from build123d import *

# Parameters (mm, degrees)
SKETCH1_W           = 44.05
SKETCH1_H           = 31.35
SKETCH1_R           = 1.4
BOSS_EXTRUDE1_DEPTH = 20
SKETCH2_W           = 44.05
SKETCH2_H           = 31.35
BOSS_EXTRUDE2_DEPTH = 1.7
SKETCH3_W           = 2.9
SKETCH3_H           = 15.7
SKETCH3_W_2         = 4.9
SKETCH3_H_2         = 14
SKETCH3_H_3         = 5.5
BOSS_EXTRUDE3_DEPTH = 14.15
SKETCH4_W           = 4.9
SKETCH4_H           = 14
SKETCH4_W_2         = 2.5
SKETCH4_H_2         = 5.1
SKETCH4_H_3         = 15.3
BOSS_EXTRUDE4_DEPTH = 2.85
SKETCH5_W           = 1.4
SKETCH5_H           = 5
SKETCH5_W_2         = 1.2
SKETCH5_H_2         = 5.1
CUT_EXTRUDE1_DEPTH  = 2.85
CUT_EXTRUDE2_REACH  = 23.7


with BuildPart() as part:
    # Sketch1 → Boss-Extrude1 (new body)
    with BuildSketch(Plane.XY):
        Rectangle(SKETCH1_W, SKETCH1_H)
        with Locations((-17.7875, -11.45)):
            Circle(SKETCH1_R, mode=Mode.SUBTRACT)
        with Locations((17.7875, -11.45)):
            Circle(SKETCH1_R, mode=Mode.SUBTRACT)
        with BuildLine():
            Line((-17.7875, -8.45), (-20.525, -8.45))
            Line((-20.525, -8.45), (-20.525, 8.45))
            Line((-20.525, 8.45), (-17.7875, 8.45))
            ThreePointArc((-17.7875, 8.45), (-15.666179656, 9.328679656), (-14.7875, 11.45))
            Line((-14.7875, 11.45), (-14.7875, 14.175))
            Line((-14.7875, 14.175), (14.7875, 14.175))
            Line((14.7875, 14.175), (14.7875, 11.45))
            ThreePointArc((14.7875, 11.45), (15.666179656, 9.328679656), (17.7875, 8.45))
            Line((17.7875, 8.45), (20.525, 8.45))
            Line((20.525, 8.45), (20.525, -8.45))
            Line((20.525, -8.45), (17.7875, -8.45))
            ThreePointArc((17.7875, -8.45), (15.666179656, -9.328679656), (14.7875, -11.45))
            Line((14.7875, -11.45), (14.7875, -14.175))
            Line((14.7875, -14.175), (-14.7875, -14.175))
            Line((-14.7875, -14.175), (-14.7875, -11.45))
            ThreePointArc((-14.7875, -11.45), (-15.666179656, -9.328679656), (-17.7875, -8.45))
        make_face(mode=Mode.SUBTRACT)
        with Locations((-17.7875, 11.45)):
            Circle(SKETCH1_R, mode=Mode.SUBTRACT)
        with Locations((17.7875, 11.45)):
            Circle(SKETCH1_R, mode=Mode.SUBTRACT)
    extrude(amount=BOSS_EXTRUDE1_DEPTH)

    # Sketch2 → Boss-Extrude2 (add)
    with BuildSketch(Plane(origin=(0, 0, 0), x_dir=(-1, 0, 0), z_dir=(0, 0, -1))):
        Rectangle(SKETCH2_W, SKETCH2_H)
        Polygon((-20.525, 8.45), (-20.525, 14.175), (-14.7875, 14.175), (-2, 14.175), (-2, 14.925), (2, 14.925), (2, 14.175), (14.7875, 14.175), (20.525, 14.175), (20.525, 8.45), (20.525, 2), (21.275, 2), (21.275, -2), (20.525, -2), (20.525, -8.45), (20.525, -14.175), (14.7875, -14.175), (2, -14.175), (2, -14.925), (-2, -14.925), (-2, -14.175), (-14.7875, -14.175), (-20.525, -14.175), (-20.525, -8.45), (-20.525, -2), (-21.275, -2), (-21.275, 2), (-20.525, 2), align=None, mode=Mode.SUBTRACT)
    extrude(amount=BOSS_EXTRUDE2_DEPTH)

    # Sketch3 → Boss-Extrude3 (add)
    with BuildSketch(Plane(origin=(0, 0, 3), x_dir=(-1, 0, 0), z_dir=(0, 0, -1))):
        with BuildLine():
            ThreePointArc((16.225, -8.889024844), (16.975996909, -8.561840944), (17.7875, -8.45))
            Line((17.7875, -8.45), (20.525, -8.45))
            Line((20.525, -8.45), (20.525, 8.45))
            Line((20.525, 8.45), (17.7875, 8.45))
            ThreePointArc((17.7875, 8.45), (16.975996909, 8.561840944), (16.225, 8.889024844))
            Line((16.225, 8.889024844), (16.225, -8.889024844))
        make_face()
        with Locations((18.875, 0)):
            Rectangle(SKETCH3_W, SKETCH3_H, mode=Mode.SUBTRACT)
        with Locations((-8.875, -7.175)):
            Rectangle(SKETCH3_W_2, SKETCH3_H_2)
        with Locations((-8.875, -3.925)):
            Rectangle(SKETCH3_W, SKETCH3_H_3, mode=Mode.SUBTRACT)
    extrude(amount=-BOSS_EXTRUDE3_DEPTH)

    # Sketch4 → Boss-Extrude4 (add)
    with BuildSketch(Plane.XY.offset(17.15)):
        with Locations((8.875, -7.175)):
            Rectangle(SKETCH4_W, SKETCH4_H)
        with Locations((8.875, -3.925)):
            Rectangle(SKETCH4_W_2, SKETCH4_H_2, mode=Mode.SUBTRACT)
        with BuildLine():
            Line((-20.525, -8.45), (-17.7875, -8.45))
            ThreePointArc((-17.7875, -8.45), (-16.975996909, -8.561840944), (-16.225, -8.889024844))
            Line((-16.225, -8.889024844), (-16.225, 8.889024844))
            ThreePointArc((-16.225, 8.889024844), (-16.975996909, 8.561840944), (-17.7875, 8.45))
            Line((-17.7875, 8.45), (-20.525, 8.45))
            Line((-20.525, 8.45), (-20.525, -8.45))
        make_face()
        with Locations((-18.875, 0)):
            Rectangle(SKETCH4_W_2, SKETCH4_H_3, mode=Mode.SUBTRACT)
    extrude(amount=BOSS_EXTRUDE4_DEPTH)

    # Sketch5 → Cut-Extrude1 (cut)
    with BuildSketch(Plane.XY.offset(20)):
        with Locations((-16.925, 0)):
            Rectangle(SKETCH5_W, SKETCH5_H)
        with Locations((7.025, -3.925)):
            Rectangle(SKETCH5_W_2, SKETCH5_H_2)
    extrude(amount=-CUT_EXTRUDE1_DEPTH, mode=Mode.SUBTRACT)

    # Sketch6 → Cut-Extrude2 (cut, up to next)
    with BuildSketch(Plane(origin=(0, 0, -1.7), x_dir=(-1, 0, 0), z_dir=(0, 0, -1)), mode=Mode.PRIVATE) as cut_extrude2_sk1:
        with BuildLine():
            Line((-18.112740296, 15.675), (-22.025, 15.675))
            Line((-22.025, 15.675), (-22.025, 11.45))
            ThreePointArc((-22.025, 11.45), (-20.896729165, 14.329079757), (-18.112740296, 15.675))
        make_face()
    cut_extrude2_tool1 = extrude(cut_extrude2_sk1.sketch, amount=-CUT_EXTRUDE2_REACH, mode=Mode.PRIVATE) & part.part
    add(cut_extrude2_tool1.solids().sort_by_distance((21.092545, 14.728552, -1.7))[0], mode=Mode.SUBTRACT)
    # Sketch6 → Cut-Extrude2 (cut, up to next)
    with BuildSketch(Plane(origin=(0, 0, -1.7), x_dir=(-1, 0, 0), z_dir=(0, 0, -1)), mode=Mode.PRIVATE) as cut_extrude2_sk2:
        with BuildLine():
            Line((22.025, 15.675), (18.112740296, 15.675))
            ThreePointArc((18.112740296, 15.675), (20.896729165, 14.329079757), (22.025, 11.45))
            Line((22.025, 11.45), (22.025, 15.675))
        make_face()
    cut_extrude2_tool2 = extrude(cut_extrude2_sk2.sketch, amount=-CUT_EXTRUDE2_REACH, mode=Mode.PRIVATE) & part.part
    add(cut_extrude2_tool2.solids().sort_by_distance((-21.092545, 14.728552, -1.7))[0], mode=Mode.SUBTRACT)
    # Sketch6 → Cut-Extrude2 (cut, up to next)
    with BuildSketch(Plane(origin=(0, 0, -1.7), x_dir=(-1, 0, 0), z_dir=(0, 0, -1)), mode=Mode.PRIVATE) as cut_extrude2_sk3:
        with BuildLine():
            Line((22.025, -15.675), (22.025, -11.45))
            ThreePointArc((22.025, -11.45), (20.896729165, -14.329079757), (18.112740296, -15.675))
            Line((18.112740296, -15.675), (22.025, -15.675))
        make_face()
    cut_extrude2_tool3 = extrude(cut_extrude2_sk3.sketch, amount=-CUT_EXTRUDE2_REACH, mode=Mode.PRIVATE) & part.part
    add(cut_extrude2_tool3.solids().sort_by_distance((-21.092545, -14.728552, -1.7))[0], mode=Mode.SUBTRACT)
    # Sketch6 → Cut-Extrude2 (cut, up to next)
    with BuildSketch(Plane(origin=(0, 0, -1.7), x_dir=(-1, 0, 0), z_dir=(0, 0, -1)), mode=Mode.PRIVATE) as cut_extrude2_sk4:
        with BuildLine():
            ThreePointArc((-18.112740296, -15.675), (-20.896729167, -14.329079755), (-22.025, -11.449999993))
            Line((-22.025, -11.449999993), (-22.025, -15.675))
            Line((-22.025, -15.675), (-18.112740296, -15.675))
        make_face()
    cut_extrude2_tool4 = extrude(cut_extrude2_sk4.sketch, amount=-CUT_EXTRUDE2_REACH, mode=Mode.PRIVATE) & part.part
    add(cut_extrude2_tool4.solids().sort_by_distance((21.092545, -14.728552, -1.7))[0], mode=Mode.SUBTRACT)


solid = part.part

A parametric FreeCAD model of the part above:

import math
import FreeCAD as App
import Part
import Sketcher
from FreeCAD import Vector

doc = App.newDocument("Part")
body = doc.addObject("PartDesign::Body", "Body")

sketch1 = body.newObject("Sketcher::SketchObject", "Sketch")
sketch1.AttachmentSupport = (doc.getObject("XY_Plane"), [""])
sketch1.MapMode = "FlatFace"
sketch1.addGeometry([
    Part.LineSegment(Vector(-22, 15.7, 0), Vector(-22, -15.7, 0)),
    Part.LineSegment(Vector(-22, -15.7, 0), Vector(22, -15.7, 0)),
    Part.LineSegment(Vector(22, -15.7, 0), Vector(22, 15.7, 0)),
    Part.LineSegment(Vector(22, 15.7, 0), Vector(-22, 15.7, 0)),
    Part.Circle(Vector(-17.8, -11.4, 0), Vector(0, 0, 1), 1.4),
    Part.Circle(Vector(17.8, -11.4, 0), Vector(0, 0, 1), 1.4),
    Part.Circle(Vector(-17.8, 11.4, 0), Vector(0, 0, 1), 1.4),
    Part.ArcOfCircle(Part.Circle(Vector(-17.8, -11.4, 0), Vector(0, 0, 1), 3), math.radians(0), math.radians(90)),
    Part.LineSegment(Vector(-17.8, -8.4, 0), Vector(-20.5, -8.4, 0)),
    Part.LineSegment(Vector(-20.5, -8.4, 0), Vector(-20.5, 8.4, 0)),
    Part.LineSegment(Vector(-20.5, 8.4, 0), Vector(-17.8, 8.4, 0)),
    Part.ArcOfCircle(Part.Circle(Vector(-17.8, 11.4, 0), Vector(0, 0, 1), 3), math.radians(-90), math.radians(0)),
    Part.LineSegment(Vector(-14.8, 11.4, 0), Vector(-14.8, 14.2, 0)),
    Part.LineSegment(Vector(-14.8, 14.2, 0), Vector(14.8, 14.2, 0)),
    Part.LineSegment(Vector(14.8, 14.2, 0), Vector(14.8, 11.4, 0)),
    Part.ArcOfCircle(Part.Circle(Vector(17.8, 11.4, 0), Vector(0, 0, 1), 3), math.radians(180), math.radians(270)),
    Part.LineSegment(Vector(17.8, 8.4, 0), Vector(20.5, 8.4, 0)),
    Part.LineSegment(Vector(20.5, 8.4, 0), Vector(20.5, -8.4, 0)),
    Part.LineSegment(Vector(20.5, -8.4, 0), Vector(17.8, -8.4, 0)),
    Part.ArcOfCircle(Part.Circle(Vector(17.8, -11.4, 0), Vector(0, 0, 1), 3), math.radians(90), math.radians(180)),
    Part.LineSegment(Vector(14.8, -11.4, 0), Vector(14.8, -14.2, 0)),
    Part.LineSegment(Vector(14.8, -14.2, 0), Vector(-14.8, -14.2, 0)),
    Part.LineSegment(Vector(-14.8, -14.2, 0), Vector(-14.8, -11.4, 0)),
    Part.Circle(Vector(17.8, 11.4, 0), Vector(0, 0, 1), 1.4),
], False)
sketch1.addConstraint([
    Sketcher.Constraint("Coincident", 0, 2, 1, 1),
    Sketcher.Constraint("Coincident", 1, 2, 2, 1),
    Sketcher.Constraint("Coincident", 2, 2, 3, 1),
    Sketcher.Constraint("Coincident", 3, 2, 0, 1),
    Sketcher.Constraint("Tangent", 7, 2, 8, 1),
    Sketcher.Constraint("Coincident", 8, 2, 9, 1),
    Sketcher.Constraint("Coincident", 9, 2, 10, 1),
    Sketcher.Constraint("Tangent", 10, 2, 11, 1),
    Sketcher.Constraint("Tangent", 11, 2, 12, 1),
    Sketcher.Constraint("Coincident", 12, 2, 13, 1),
    Sketcher.Constraint("Coincident", 13, 2, 14, 1),
    Sketcher.Constraint("Tangent", 14, 2, 15, 1),
    Sketcher.Constraint("Tangent", 15, 2, 16, 1),
    Sketcher.Constraint("Coincident", 16, 2, 17, 1),
    Sketcher.Constraint("Coincident", 17, 2, 18, 1),
    Sketcher.Constraint("Tangent", 18, 2, 19, 1),
    Sketcher.Constraint("Tangent", 19, 2, 20, 1),
    Sketcher.Constraint("Coincident", 20, 2, 21, 1),
    Sketcher.Constraint("Coincident", 21, 2, 22, 1),
    Sketcher.Constraint("Tangent", 22, 2, 7, 1),
    Sketcher.Constraint("Vertical", 0),
    Sketcher.Constraint("Horizontal", 1),
    Sketcher.Constraint("Vertical", 2),
    Sketcher.Constraint("Horizontal", 3),
    Sketcher.Constraint("Horizontal", 8),
    Sketcher.Constraint("Vertical", 9),
    Sketcher.Constraint("Horizontal", 10),
    Sketcher.Constraint("Vertical", 12),
    Sketcher.Constraint("Horizontal", 13),
    Sketcher.Constraint("Vertical", 14),
    Sketcher.Constraint("Horizontal", 16),
    Sketcher.Constraint("Vertical", 17),
    Sketcher.Constraint("Horizontal", 18),
    Sketcher.Constraint("Vertical", 20),
    Sketcher.Constraint("Horizontal", 21),
    Sketcher.Constraint("Vertical", 22),
    Sketcher.Constraint("Coincident", 7, 3, 4, 3),
    Sketcher.Constraint("Coincident", 11, 3, 6, 3),
    Sketcher.Constraint("Coincident", 19, 3, 5, 3),
    Sketcher.Constraint("Coincident", 23, 3, 15, 3),
    Sketcher.Constraint("Equal", 4, 5),
    Sketcher.Constraint("Equal", 5, 6),
    Sketcher.Constraint("Equal", 7, 11),
    Sketcher.Constraint("Equal", 11, 15),
    Sketcher.Constraint("Equal", 15, 19),
    Sketcher.Constraint("Equal", 6, 23),
    Sketcher.Constraint("Symmetric", 5, 3, 6, 3, -1, 1),
    Sketcher.Constraint("Symmetric", 4, 3, 15, 3, -1, 1),
    Sketcher.Constraint("Symmetric", 0, 2, 2, 2, -1, 1),
    Sketcher.Constraint("Symmetric", 4, 3, 5, 3, -2),
    Sketcher.Constraint("Equal", 10, 16),
    Sketcher.Constraint("Equal", 14, 20),
    Sketcher.Constraint("Radius", 7, 3.0),
    Sketcher.Constraint("Diameter", 4, 2.8),
    Sketcher.Constraint("DistanceY", 9, 1, 9, 2, 16.9),
    Sketcher.Constraint("DistanceX", 1, 1, 1, 2, 44.05),
    Sketcher.Constraint("DistanceY", 0, 2, 0, 1, 31.35),
    Sketcher.Constraint("DistanceX", 0, 2, 8, 2, 1.5),
    Sketcher.Constraint("DistanceY", 12, 2, 3, 2, 1.5),
    Sketcher.Constraint("DistanceX", 13, 1, 13, 2, 29.575),
])
pad1 = body.newObject("PartDesign::Pad", "Pad")
pad1.Profile = sketch1
pad1.Length = 20

sketch2 = body.newObject("Sketcher::SketchObject", "Sketch001")
sketch2.AttachmentSupport = (doc.getObject("XY_Plane"), [""])
sketch2.MapMode = "FlatFace"
sketch2.addGeometry([
    Part.LineSegment(Vector(22, 15.7, 0), Vector(22, -15.7, 0)),
    Part.LineSegment(Vector(22, -15.7, 0), Vector(-22, -15.7, 0)),
    Part.LineSegment(Vector(-22, -15.7, 0), Vector(-22, 15.7, 0)),
    Part.LineSegment(Vector(-22, 15.7, 0), Vector(22, 15.7, 0)),
    Part.LineSegment(Vector(20.5, 2, 0), Vector(20.5, 14.2, 0)),
    Part.LineSegment(Vector(20.5, 14.2, 0), Vector(2, 14.2, 0)),
    Part.LineSegment(Vector(2, 14.2, 0), Vector(2, 14.9, 0)),
    Part.LineSegment(Vector(2, 14.9, 0), Vector(-2, 14.9, 0)),
    Part.LineSegment(Vector(-2, 14.9, 0), Vector(-2, 14.2, 0)),
    Part.LineSegment(Vector(-2, 14.2, 0), Vector(-20.5, 14.2, 0)),
    Part.LineSegment(Vector(-20.5, 14.2, 0), Vector(-20.5, 2, 0)),
    Part.LineSegment(Vector(-20.5, 2, 0), Vector(-21.3, 2, 0)),
    Part.LineSegment(Vector(-21.3, 2, 0), Vector(-21.3, -2, 0)),
    Part.LineSegment(Vector(-21.3, -2, 0), Vector(-20.5, -2, 0)),
    Part.LineSegment(Vector(-20.5, -2, 0), Vector(-20.5, -14.2, 0)),
    Part.LineSegment(Vector(-20.5, -14.2, 0), Vector(-2, -14.2, 0)),
    Part.LineSegment(Vector(-2, -14.2, 0), Vector(-2, -14.9, 0)),
    Part.LineSegment(Vector(-2, -14.9, 0), Vector(2, -14.9, 0)),
    Part.LineSegment(Vector(2, -14.9, 0), Vector(2, -14.2, 0)),
    Part.LineSegment(Vector(2, -14.2, 0), Vector(20.5, -14.2, 0)),
    Part.LineSegment(Vector(20.5, -14.2, 0), Vector(20.5, -2, 0)),
    Part.LineSegment(Vector(20.5, -2, 0), Vector(21.3, -2, 0)),
    Part.LineSegment(Vector(21.3, -2, 0), Vector(21.3, 2, 0)),
    Part.LineSegment(Vector(21.3, 2, 0), Vector(20.5, 2, 0)),
], False)
sketch2.addConstraint([
    Sketcher.Constraint("Coincident", 0, 2, 1, 1),
    Sketcher.Constraint("Coincident", 1, 2, 2, 1),
    Sketcher.Constraint("Coincident", 2, 2, 3, 1),
    Sketcher.Constraint("Coincident", 3, 2, 0, 1),
    Sketcher.Constraint("Coincident", 4, 2, 5, 1),
    Sketcher.Constraint("Coincident", 5, 2, 6, 1),
    Sketcher.Constraint("Coincident", 6, 2, 7, 1),
    Sketcher.Constraint("Coincident", 7, 2, 8, 1),
    Sketcher.Constraint("Coincident", 8, 2, 9, 1),
    Sketcher.Constraint("Coincident", 9, 2, 10, 1),
    Sketcher.Constraint("Coincident", 10, 2, 11, 1),
    Sketcher.Constraint("Coincident", 11, 2, 12, 1),
    Sketcher.Constraint("Coincident", 12, 2, 13, 1),
    Sketcher.Constraint("Coincident", 13, 2, 14, 1),
    Sketcher.Constraint("Coincident", 14, 2, 15, 1),
    Sketcher.Constraint("Coincident", 15, 2, 16, 1),
    Sketcher.Constraint("Coincident", 16, 2, 17, 1),
    Sketcher.Constraint("Coincident", 17, 2, 18, 1),
    Sketcher.Constraint("Coincident", 18, 2, 19, 1),
    Sketcher.Constraint("Coincident", 19, 2, 20, 1),
    Sketcher.Constraint("Coincident", 20, 2, 21, 1),
    Sketcher.Constraint("Coincident", 21, 2, 22, 1),
    Sketcher.Constraint("Coincident", 22, 2, 23, 1),
    Sketcher.Constraint("Coincident", 23, 2, 4, 1),
    Sketcher.Constraint("Vertical", 0),
    Sketcher.Constraint("Horizontal", 1),
    Sketcher.Constraint("Vertical", 2),
    Sketcher.Constraint("Horizontal", 3),
    Sketcher.Constraint("Vertical", 4),
    Sketcher.Constraint("Horizontal", 5),
    Sketcher.Constraint("Vertical", 6),
    Sketcher.Constraint("Horizontal", 7),
    Sketcher.Constraint("Vertical", 8),
    Sketcher.Constraint("Horizontal", 9),
    Sketcher.Constraint("Vertical", 10),
    Sketcher.Constraint("Horizontal", 11),
    Sketcher.Constraint("Vertical", 12),
    Sketcher.Constraint("Horizontal", 13),
    Sketcher.Constraint("Vertical", 14),
    Sketcher.Constraint("Horizontal", 15),
    Sketcher.Constraint("Vertical", 16),
    Sketcher.Constraint("Horizontal", 17),
    Sketcher.Constraint("Vertical", 18),
    Sketcher.Constraint("Horizontal", 19),
    Sketcher.Constraint("Vertical", 20),
    Sketcher.Constraint("Horizontal", 21),
    Sketcher.Constraint("Vertical", 22),
    Sketcher.Constraint("Horizontal", 23),
    Sketcher.Constraint("Symmetric", 0, 2, 2, 2, -1, 1),
    Sketcher.Constraint("Symmetric", 4, 2, 14, 2, -1, 1),
    Sketcher.Constraint("Symmetric", 6, 2, 16, 2, -1, 1),
    Sketcher.Constraint("Symmetric", 8, 2, 18, 2, -1, 1),
    Sketcher.Constraint("Symmetric", 10, 2, 20, 2, -1, 1),
    Sketcher.Constraint("Symmetric", 12, 2, 22, 2, -1, 1),
    Sketcher.Constraint("Symmetric", 5, 2, 8, 2, -2),
    Sketcher.Constraint("Symmetric", 13, 2, 20, 2, -2),
    Sketcher.Constraint("Equal", 23, 6),
    Sketcher.Constraint("Equal", 17, 12),
    Sketcher.Constraint("DistanceX", 7, 2, 7, 1, 4.0),
    Sketcher.Constraint("DistanceX", 1, 2, 1, 1, 44.05),
    Sketcher.Constraint("DistanceX", 11, 2, 11, 1, 0.75),
    Sketcher.Constraint("DistanceY", 0, 2, 0, 1, 31.35),
    Sketcher.Constraint("DistanceX", 4, 2, 3, 2, 1.5),
    Sketcher.Constraint("DistanceY", 4, 2, 3, 2, 1.5),
])
pad2 = body.newObject("PartDesign::Pad", "Pad001")
pad2.Profile = sketch2
pad2.Length = 1.7
pad2.Reversed = True

sketch3 = body.newObject("Sketcher::SketchObject", "Sketch002")
sketch3.AttachmentSupport = (doc.getObject("XY_Plane"), [""])
sketch3.MapMode = "FlatFace"
sketch3.AttachmentOffset = App.Placement(Vector(0, 0, 3), App.Rotation())
sketch3.addGeometry([
    Part.ArcOfCircle(Part.Circle(Vector(-17.8, -11.5, 0), Vector(0, 0, 1), 3), math.radians(59), math.radians(90)),
    Part.LineSegment(Vector(-17.8, -8.4, 0), Vector(-20.5, -8.4, 0)),
    Part.LineSegment(Vector(-20.5, -8.4, 0), Vector(-20.5, 8.4, 0)),
    Part.LineSegment(Vector(-20.5, 8.4, 0), Vector(-17.8, 8.4, 0)),
    Part.ArcOfCircle(Part.Circle(Vector(-17.8, 11.5, 0), Vector(0, 0, 1), 3), math.radians(-90), math.radians(-59)),
    Part.LineSegment(Vector(-16.2, 8.9, 0), Vector(-16.2, -8.9, 0)),
    Part.LineSegment(Vector(-20.3, -7.8, 0), Vector(-17.4, -7.8, 0)),
    Part.LineSegment(Vector(-17.4, -7.8, 0), Vector(-17.4, 7.8, 0)),
    Part.LineSegment(Vector(-17.4, 7.8, 0), Vector(-20.3, 7.8, 0)),
    Part.LineSegment(Vector(-20.3, 7.8, 0), Vector(-20.3, -7.8, 0)),
    Part.LineSegment(Vector(11.3, -0.2, 0), Vector(11.3, -14.2, 0)),
    Part.LineSegment(Vector(11.3, -14.2, 0), Vector(6.4, -14.2, 0)),
    Part.LineSegment(Vector(6.4, -14.2, 0), Vector(6.4, -0.2, 0)),
    Part.LineSegment(Vector(6.4, -0.2, 0), Vector(11.3, -0.2, 0)),
    Part.LineSegment(Vector(7.4, -6.7, 0), Vector(10.3, -6.7, 0)),
    Part.LineSegment(Vector(10.3, -6.7, 0), Vector(10.3, -1.2, 0)),
    Part.LineSegment(Vector(10.3, -1.2, 0), Vector(7.4, -1.2, 0)),
    Part.LineSegment(Vector(7.4, -1.2, 0), Vector(7.4, -6.7, 0)),
], False)
sketch3.addConstraint([
    Sketcher.Constraint("Tangent", 0, 2, 1, 1),
    Sketcher.Constraint("Coincident", 1, 2, 2, 1),
    Sketcher.Constraint("Coincident", 2, 2, 3, 1),
    Sketcher.Constraint("Tangent", 3, 2, 4, 1),
    Sketcher.Constraint("Coincident", 4, 2, 5, 1),
    Sketcher.Constraint("Coincident", 5, 2, 0, 1),
    Sketcher.Constraint("Coincident", 6, 2, 7, 1),
    Sketcher.Constraint("Coincident", 7, 2, 8, 1),
    Sketcher.Constraint("Coincident", 8, 2, 9, 1),
    Sketcher.Constraint("Coincident", 9, 2, 6, 1),
    Sketcher.Constraint("Coincident", 10, 2, 11, 1),
    Sketcher.Constraint("Coincident", 11, 2, 12, 1),
    Sketcher.Constraint("Coincident", 12, 2, 13, 1),
    Sketcher.Constraint("Coincident", 13, 2, 10, 1),
    Sketcher.Constraint("Coincident", 14, 2, 15, 1),
    Sketcher.Constraint("Coincident", 15, 2, 16, 1),
    Sketcher.Constraint("Coincident", 16, 2, 17, 1),
    Sketcher.Constraint("Coincident", 17, 2, 14, 1),
    Sketcher.Constraint("Horizontal", 1),
    Sketcher.Constraint("Vertical", 2),
    Sketcher.Constraint("Horizontal", 3),
    Sketcher.Constraint("Vertical", 5),
    Sketcher.Constraint("Horizontal", 6),
    Sketcher.Constraint("Vertical", 7),
    Sketcher.Constraint("Horizontal", 8),
    Sketcher.Constraint("Vertical", 9),
    Sketcher.Constraint("Vertical", 10),
    Sketcher.Constraint("Horizontal", 11),
    Sketcher.Constraint("Vertical", 12),
    Sketcher.Constraint("Horizontal", 13),
    Sketcher.Constraint("Horizontal", 14),
    Sketcher.Constraint("Vertical", 15),
    Sketcher.Constraint("Horizontal", 16),
    Sketcher.Constraint("Vertical", 17),
    Sketcher.Constraint("Equal", 0, 4),
    Sketcher.Constraint("Symmetric", 0, 3, 4, 3, -1),
    Sketcher.Constraint("Equal", 8, 14),
    Sketcher.Constraint("Radius", 0, 3.0),
    Sketcher.Constraint("DistanceY", 10, 2, 10, 1, 14.0),
    Sketcher.Constraint("DistanceX", 6, 1, 6, 2, 2.9),
    Sketcher.Constraint("DistanceX", 11, 2, 11, 1, 4.9),
    Sketcher.Constraint("DistanceY", 2, 1, 2, 2, 16.9),
    Sketcher.Constraint("DistanceY", 7, 1, 7, 2, 15.7),
    Sketcher.Constraint("DistanceY", 15, 1, 15, 2, 5.5),
    Sketcher.Constraint("DistanceX", 14, 2, 13, 2, 1.0),
    Sketcher.Constraint("DistanceY", 15, 2, 13, 2, 1.0),
    Sketcher.Constraint("DistanceX", 2, 2, 4, 2, 4.3),
    Sketcher.Constraint("DistanceY", 0, 2, 6, 2, 0.6),
    Sketcher.Constraint("DistanceX", 6, 2, 5, 2, 1.2),
    Sketcher.Constraint("DistanceX", 5, 2, 10, 2, 27.55),
    Sketcher.Constraint("DistanceX", 1, 2, 1, 1, 2.7375),
    Sketcher.Constraint("DistanceX", 1, 2, -1, 1, 20.525),
    Sketcher.Constraint("DistanceY", 10, 2, -1, 1, 14.175),
])
pad3 = body.newObject("PartDesign::Pad", "Pad002")
pad3.Profile = sketch3
pad3.Length = 14.15

sketch4 = body.newObject("Sketcher::SketchObject", "Sketch003")
sketch4.AttachmentSupport = (doc.getObject("XY_Plane"), [""])
sketch4.MapMode = "FlatFace"
sketch4.AttachmentOffset = App.Placement(Vector(0, 0, 17.15), App.Rotation())
sketch4.addGeometry([
    Part.LineSegment(Vector(6.4, -0.2, 0), Vector(6.4, -14.2, 0)),
    Part.LineSegment(Vector(6.4, -14.2, 0), Vector(11.3, -14.2, 0)),
    Part.LineSegment(Vector(11.3, -14.2, 0), Vector(11.3, -0.2, 0)),
    Part.LineSegment(Vector(11.3, -0.2, 0), Vector(6.4, -0.2, 0)),
    Part.LineSegment(Vector(10.1, -6.5, 0), Vector(7.6, -6.5, 0)),
    Part.LineSegment(Vector(7.6, -6.5, 0), Vector(7.6, -1.4, 0)),
    Part.LineSegment(Vector(7.6, -1.4, 0), Vector(10.1, -1.4, 0)),
    Part.LineSegment(Vector(10.1, -1.4, 0), Vector(10.1, -6.5, 0)),
    Part.LineSegment(Vector(-20.5, -8.4, 0), Vector(-17.8, -8.4, 0)),
    Part.ArcOfCircle(Part.Circle(Vector(-17.8, -11.5, 0), Vector(0, 0, 1), 3), math.radians(59), math.radians(90)),
    Part.LineSegment(Vector(-16.2, -8.9, 0), Vector(-16.2, 8.9, 0)),
    Part.ArcOfCircle(Part.Circle(Vector(-17.8, 11.5, 0), Vector(0, 0, 1), 3), math.radians(-90), math.radians(-59)),
    Part.LineSegment(Vector(-17.8, 8.4, 0), Vector(-20.5, 8.4, 0)),
    Part.LineSegment(Vector(-20.5, 8.4, 0), Vector(-20.5, -8.4, 0)),
    Part.LineSegment(Vector(-17.6, -7.7, 0), Vector(-20.1, -7.7, 0)),
    Part.LineSegment(Vector(-20.1, -7.7, 0), Vector(-20.1, 7.7, 0)),
    Part.LineSegment(Vector(-20.1, 7.7, 0), Vector(-17.6, 7.7, 0)),
    Part.LineSegment(Vector(-17.6, 7.7, 0), Vector(-17.6, -7.7, 0)),
], False)
sketch4.addConstraint([
    Sketcher.Constraint("Coincident", 0, 2, 1, 1),
    Sketcher.Constraint("Coincident", 1, 2, 2, 1),
    Sketcher.Constraint("Coincident", 2, 2, 3, 1),
    Sketcher.Constraint("Coincident", 3, 2, 0, 1),
    Sketcher.Constraint("Coincident", 4, 2, 5, 1),
    Sketcher.Constraint("Coincident", 5, 2, 6, 1),
    Sketcher.Constraint("Coincident", 6, 2, 7, 1),
    Sketcher.Constraint("Coincident", 7, 2, 4, 1),
    Sketcher.Constraint("Tangent", 8, 2, 9, 2),
    Sketcher.Constraint("Coincident", 9, 1, 10, 1),
    Sketcher.Constraint("Coincident", 10, 2, 11, 2),
    Sketcher.Constraint("Tangent", 11, 1, 12, 1),
    Sketcher.Constraint("Coincident", 12, 2, 13, 1),
    Sketcher.Constraint("Coincident", 13, 2, 8, 1),
    Sketcher.Constraint("Coincident", 14, 2, 15, 1),
    Sketcher.Constraint("Coincident", 15, 2, 16, 1),
    Sketcher.Constraint("Coincident", 16, 2, 17, 1),
    Sketcher.Constraint("Coincident", 17, 2, 14, 1),
    Sketcher.Constraint("Vertical", 0),
    Sketcher.Constraint("Horizontal", 1),
    Sketcher.Constraint("Vertical", 2),
    Sketcher.Constraint("Horizontal", 3),
    Sketcher.Constraint("Horizontal", 4),
    Sketcher.Constraint("Vertical", 5),
    Sketcher.Constraint("Horizontal", 6),
    Sketcher.Constraint("Vertical", 7),
    Sketcher.Constraint("Horizontal", 8),
    Sketcher.Constraint("Vertical", 10),
    Sketcher.Constraint("Horizontal", 12),
    Sketcher.Constraint("Vertical", 13),
    Sketcher.Constraint("Horizontal", 14),
    Sketcher.Constraint("Vertical", 15),
    Sketcher.Constraint("Horizontal", 16),
    Sketcher.Constraint("Vertical", 17),
    Sketcher.Constraint("Equal", 9, 11),
    Sketcher.Constraint("Symmetric", 9, 3, 11, 3, -1),
    Sketcher.Constraint("Equal", 6, 14),
    Sketcher.Constraint("Radius", 9, 3.0),
    Sketcher.Constraint("DistanceY", 0, 2, 0, 1, 14.0),
    Sketcher.Constraint("DistanceX", 1, 1, 1, 2, 4.9),
    Sketcher.Constraint("DistanceX", 4, 2, 4, 1, 2.5),
    Sketcher.Constraint("DistanceY", 5, 1, 5, 2, 5.1),
    Sketcher.Constraint("DistanceY", 13, 2, 13, 1, 16.9),
    Sketcher.Constraint("DistanceY", 15, 1, 15, 2, 15.3),
    Sketcher.Constraint("DistanceX", 3, 2, 4, 2, 1.2),
    Sketcher.Constraint("DistanceY", 4, 2, 3, 2, 6.3),
    Sketcher.Constraint("DistanceX", 12, 2, 10, 2, 4.3),
    Sketcher.Constraint("DistanceX", 13, 2, 14, 2, 0.4),
    Sketcher.Constraint("DistanceY", 13, 2, 14, 2, 0.8),
    Sketcher.Constraint("DistanceX", 9, 1, 0, 2, 22.65),
    Sketcher.Constraint("DistanceX", 8, 1, 8, 2, 2.7375),
    Sketcher.Constraint("DistanceX", -1, 1, 0, 2, 6.425),
    Sketcher.Constraint("DistanceY", 0, 2, -1, 1, 14.175),
])
pad4 = body.newObject("PartDesign::Pad", "Pad003")
pad4.Profile = sketch4
pad4.Length = 2.85

sketch5 = body.newObject("Sketcher::SketchObject", "Sketch004")
sketch5.AttachmentSupport = (doc.getObject("XY_Plane"), [""])
sketch5.MapMode = "FlatFace"
sketch5.AttachmentOffset = App.Placement(Vector(0, 0, 20), App.Rotation())
sketch5.addGeometry([
    Part.LineSegment(Vector(-17.6, 2.5, 0), Vector(-17.6, -2.5, 0)),
    Part.LineSegment(Vector(-17.6, -2.5, 0), Vector(-16.2, -2.5, 0)),
    Part.LineSegment(Vector(-16.2, -2.5, 0), Vector(-16.2, 2.5, 0)),
    Part.LineSegment(Vector(-16.2, 2.5, 0), Vector(-17.6, 2.5, 0)),
    Part.LineSegment(Vector(6.4, -1.4, 0), Vector(6.4, -6.5, 0)),
    Part.LineSegment(Vector(6.4, -6.5, 0), Vector(7.6, -6.5, 0)),
    Part.LineSegment(Vector(7.6, -6.5, 0), Vector(7.6, -1.4, 0)),
    Part.LineSegment(Vector(7.6, -1.4, 0), Vector(6.4, -1.4, 0)),
], False)
sketch5.addConstraint([
    Sketcher.Constraint("Coincident", 0, 2, 1, 1),
    Sketcher.Constraint("Coincident", 1, 2, 2, 1),
    Sketcher.Constraint("Coincident", 2, 2, 3, 1),
    Sketcher.Constraint("Coincident", 3, 2, 0, 1),
    Sketcher.Constraint("Coincident", 4, 2, 5, 1),
    Sketcher.Constraint("Coincident", 5, 2, 6, 1),
    Sketcher.Constraint("Coincident", 6, 2, 7, 1),
    Sketcher.Constraint("Coincident", 7, 2, 4, 1),
    Sketcher.Constraint("Vertical", 0),
    Sketcher.Constraint("Horizontal", 1),
    Sketcher.Constraint("Vertical", 2),
    Sketcher.Constraint("Horizontal", 3),
    Sketcher.Constraint("Vertical", 4),
    Sketcher.Constraint("Horizontal", 5),
    Sketcher.Constraint("Vertical", 6),
    Sketcher.Constraint("Horizontal", 7),
    Sketcher.Constraint("DistanceY", 0, 2, 0, 1, 5.0),
    Sketcher.Constraint("DistanceX", 1, 1, 1, 2, 1.4),
    Sketcher.Constraint("DistanceX", 5, 1, 5, 2, 1.2),
    Sketcher.Constraint("DistanceY", 4, 2, 4, 1, 5.1),
    Sketcher.Constraint("DistanceY", 0, 2, -1, 1, 2.5),
    Sketcher.Constraint("DistanceX", 1, 2, 4, 2, 22.65),
    Sketcher.Constraint("DistanceX", 0, 2, -1, 1, 17.625),
    Sketcher.Constraint("DistanceY", 4, 2, -1, 1, 6.475),
])
pocket1 = body.newObject("PartDesign::Pocket", "Pocket")
pocket1.Profile = sketch5
pocket1.Length = 2.85

sketch6 = body.newObject("Sketcher::SketchObject", "Sketch005")
sketch6.AttachmentSupport = (doc.getObject("XY_Plane"), [""])
sketch6.MapMode = "FlatFace"
sketch6.AttachmentOffset = App.Placement(Vector(0, 0, -1.7), App.Rotation())
sketch6.addGeometry([
    Part.LineSegment(Vector(18.1, 15.7, 0), Vector(22, 15.7, 0)),
    Part.LineSegment(Vector(22, 15.7, 0), Vector(22, 11.4, 0)),
    Part.ArcOfCircle(Part.Circle(Vector(17.8, 11.4, 0), Vector(0, 0, 1), 4.2), math.radians(0), math.radians(86)),
], False)
sketch6.addConstraint([
    Sketcher.Constraint("Coincident", 0, 2, 1, 1),
    Sketcher.Constraint("Tangent", 1, 2, 2, 1),
    Sketcher.Constraint("Coincident", 2, 2, 0, 1),
    Sketcher.Constraint("Horizontal", 0),
    Sketcher.Constraint("Vertical", 1),
    Sketcher.Constraint("Radius", 2, 4.2375),
    Sketcher.Constraint("DistanceY", 1, 2, 1, 1, 4.225),
    Sketcher.Constraint("DistanceY", -1, 1, 2, 3, 11.45),
    Sketcher.Constraint("DistanceX", -1, 1, 0, 2, 22.025),
])
pocket2 = body.newObject("PartDesign::Pocket", "Pocket001")
pocket2.Profile = sketch6
pocket2.Type = "UpToFirst"
pocket2.Reversed = True

sketch7 = body.newObject("Sketcher::SketchObject", "Sketch006")
sketch7.AttachmentSupport = (doc.getObject("XY_Plane"), [""])
sketch7.MapMode = "FlatFace"
sketch7.AttachmentOffset = App.Placement(Vector(0, 0, -1.7), App.Rotation())
sketch7.addGeometry([
    Part.LineSegment(Vector(-22, 15.7, 0), Vector(-18.1, 15.7, 0)),
    Part.ArcOfCircle(Part.Circle(Vector(-17.8, 11.4, 0), Vector(0, 0, 1), 4.2), math.radians(94), math.radians(180)),
    Part.LineSegment(Vector(-22, 11.4, 0), Vector(-22, 15.7, 0)),
], False)
sketch7.addConstraint([
    Sketcher.Constraint("Coincident", 0, 2, 1, 1),
    Sketcher.Constraint("Tangent", 1, 2, 2, 1),
    Sketcher.Constraint("Coincident", 2, 2, 0, 1),
    Sketcher.Constraint("Horizontal", 0),
    Sketcher.Constraint("Vertical", 2),
    Sketcher.Constraint("Radius", 1, 4.2375),
    Sketcher.Constraint("DistanceY", 2, 1, 2, 2, 4.225),
    Sketcher.Constraint("DistanceY", -1, 1, 1, 3, 11.45),
    Sketcher.Constraint("DistanceX", 1, 2, -1, 1, 22.025),
])
pocket3 = body.newObject("PartDesign::Pocket", "Pocket002")
pocket3.Profile = sketch7
pocket3.Type = "UpToFirst"
pocket3.Reversed = True

sketch8 = body.newObject("Sketcher::SketchObject", "Sketch007")
sketch8.AttachmentSupport = (doc.getObject("XY_Plane"), [""])
sketch8.MapMode = "FlatFace"
sketch8.AttachmentOffset = App.Placement(Vector(0, 0, -1.7), App.Rotation())
sketch8.addGeometry([
    Part.LineSegment(Vector(-22, -15.7, 0), Vector(-22, -11.4, 0)),
    Part.ArcOfCircle(Part.Circle(Vector(-17.8, -11.4, 0), Vector(0, 0, 1), 4.2), math.radians(-180), math.radians(-94)),
    Part.LineSegment(Vector(-18.1, -15.7, 0), Vector(-22, -15.7, 0)),
], False)
sketch8.addConstraint([
    Sketcher.Constraint("Tangent", 0, 2, 1, 1),
    Sketcher.Constraint("Coincident", 1, 2, 2, 1),
    Sketcher.Constraint("Coincident", 2, 2, 0, 1),
    Sketcher.Constraint("Vertical", 0),
    Sketcher.Constraint("Horizontal", 2),
    Sketcher.Constraint("Radius", 1, 4.2375),
    Sketcher.Constraint("DistanceY", 0, 1, 0, 2, 4.225),
    Sketcher.Constraint("DistanceY", 1, 3, -1, 1, 11.45),
    Sketcher.Constraint("DistanceX", 0, 2, -1, 1, 22.025),
])
pocket4 = body.newObject("PartDesign::Pocket", "Pocket003")
pocket4.Profile = sketch8
pocket4.Type = "UpToFirst"
pocket4.Reversed = True

sketch9 = body.newObject("Sketcher::SketchObject", "Sketch008")
sketch9.AttachmentSupport = (doc.getObject("XY_Plane"), [""])
sketch9.MapMode = "FlatFace"
sketch9.AttachmentOffset = App.Placement(Vector(0, 0, -1.7), App.Rotation())
sketch9.addGeometry([
    Part.ArcOfCircle(Part.Circle(Vector(17.8, -11.4, 0), Vector(0, 0, 1), 4.2), math.radians(-86), math.radians(0)),
    Part.LineSegment(Vector(22, -11.4, 0), Vector(22, -15.7, 0)),
    Part.LineSegment(Vector(22, -15.7, 0), Vector(18.1, -15.7, 0)),
], False)
sketch9.addConstraint([
    Sketcher.Constraint("Tangent", 0, 2, 1, 1),
    Sketcher.Constraint("Coincident", 1, 2, 2, 1),
    Sketcher.Constraint("Coincident", 2, 2, 0, 1),
    Sketcher.Constraint("Vertical", 1),
    Sketcher.Constraint("Horizontal", 2),
    Sketcher.Constraint("Radius", 0, 4.2375),
    Sketcher.Constraint("DistanceY", 1, 2, 1, 1, 4.225),
    Sketcher.Constraint("DistanceY", 0, 3, -1, 1, 11.45),
    Sketcher.Constraint("DistanceX", -1, 1, 0, 2, 22.025),
])
pocket5 = body.newObject("PartDesign::Pocket", "Pocket004")
pocket5.Profile = sketch9
pocket5.Type = "UpToFirst"
pocket5.Reversed = True

doc.recompute()
